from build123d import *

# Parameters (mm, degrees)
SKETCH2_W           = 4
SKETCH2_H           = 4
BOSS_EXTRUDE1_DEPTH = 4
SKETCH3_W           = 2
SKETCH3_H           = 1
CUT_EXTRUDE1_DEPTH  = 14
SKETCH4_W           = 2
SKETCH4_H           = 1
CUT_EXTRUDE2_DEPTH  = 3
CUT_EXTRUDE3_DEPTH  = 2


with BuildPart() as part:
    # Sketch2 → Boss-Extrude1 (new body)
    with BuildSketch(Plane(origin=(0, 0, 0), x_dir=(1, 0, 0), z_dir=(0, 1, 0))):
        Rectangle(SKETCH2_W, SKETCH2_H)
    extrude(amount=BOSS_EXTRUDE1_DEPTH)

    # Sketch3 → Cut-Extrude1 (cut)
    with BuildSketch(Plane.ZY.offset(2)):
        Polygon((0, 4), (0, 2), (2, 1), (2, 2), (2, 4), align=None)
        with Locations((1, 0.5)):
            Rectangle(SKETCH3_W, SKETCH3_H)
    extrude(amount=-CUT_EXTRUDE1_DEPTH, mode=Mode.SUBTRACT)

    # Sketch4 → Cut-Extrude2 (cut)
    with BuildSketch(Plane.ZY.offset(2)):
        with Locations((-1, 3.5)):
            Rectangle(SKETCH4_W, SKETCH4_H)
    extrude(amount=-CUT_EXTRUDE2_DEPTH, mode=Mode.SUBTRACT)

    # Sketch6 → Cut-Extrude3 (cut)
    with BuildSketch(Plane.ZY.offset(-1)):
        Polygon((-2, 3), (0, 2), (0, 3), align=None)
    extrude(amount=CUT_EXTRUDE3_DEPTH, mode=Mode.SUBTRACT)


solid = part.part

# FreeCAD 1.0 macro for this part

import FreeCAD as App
import Part
import Sketcher
from FreeCAD import Vector


def add_polygon(sketch, points):
    """Adds a closed chain of lines whose ends are joined by coincident constraints."""
    first, n = sketch.GeometryCount, len(points)
    for a, b in zip(points, points[1:] + points[:1]):
        sketch.addGeometry(Part.LineSegment(App.Vector(*a, 0), App.Vector(*b, 0)), False)
    for i in range(n):
        sketch.addConstraint(Sketcher.Constraint("Coincident", first + i, 2, first + (i + 1) % n, 1))

doc = App.newDocument("Part")
params = doc.addObject("Spreadsheet::Sheet", "Params")
for row, (alias, value) in enumerate([
    ("sketch1_width", "4 mm"),
    ("pad1_length", "4 mm"),
    ("sketch2_width", "2 mm"),
    ("sketch2_width2", "3 mm"),
    ("sketch2_width3", "1 mm"),
    ("pocket1_length", "14 mm"),
    ("sketch3_width", "1 mm"),
    ("sketch3_height", "2 mm"),
    ("pocket2_length", "3 mm"),
    ("sketch4_width", "1 mm"),
    ("sketch4_height", "2 mm"),
    ("pocket3_length", "2 mm"),
], start=1):
    params.set(f"A{row}", alias)
    params.set(f"B{row}", "=" + value)
    params.setAlias(f"B{row}", alias)

body = doc.addObject("PartDesign::Body", "Body")

# Sketch on XZ plane
sketch1 = body.newObject("Sketcher::SketchObject", "Sketch")
sketch1.AttachmentSupport = (doc.getObject("XZ_Plane"), [""])
sketch1.MapMode = "FlatFace"
add_polygon(sketch1, [(-2, -2), (-2, 2), (2, 2), (2, -2)])  # lines 0-3
sketch1.addConstraint(Sketcher.Constraint("Vertical", 0))
sketch1.addConstraint(Sketcher.Constraint("Horizontal", 1))
sketch1.addConstraint(Sketcher.Constraint("Vertical", 2))
sketch1.addConstraint(Sketcher.Constraint("Horizontal", 3))
sketch1.addConstraint(Sketcher.Constraint("Symmetric", 0, 2, 2, 2, -1, 1))
sketch1.addConstraint(Sketcher.Constraint("Equal", 3, 0))
sketch1.addConstraint(Sketcher.Constraint("DistanceX", 1, 1, 1, 2, 4.0))
sketch1.setExpression("Constraints[10]", "Params.sketch1_width")
pad1 = body.newObject("PartDesign::Pad", "Pad")
pad1.Profile = sketch1
pad1.setExpression("Length", "Params.pad1_length")
pad1.Reversed = True

# Sketch on YZ plane
sketch2 = body.newObject("Sketcher::SketchObject", "Sketch001")
sketch2.AttachmentSupport = (doc.getObject("YZ_Plane"), [""])
sketch2.MapMode = "FlatFace"
sketch2.AttachmentOffset = App.Placement(Vector(0, 0, -2), App.Rotation())
add_polygon(sketch2, [(4, 0), (2, 0), (1, 2), (4, 2)])  # lines 0-3
add_polygon(sketch2, [(1, 0), (0, 0), (0, 2), (1, 2)])  # lines 4-7
sketch2.addConstraint(Sketcher.Constraint("Horizontal", 0))
sketch2.addConstraint(Sketcher.Constraint("Horizontal", 2))
sketch2.addConstraint(Sketcher.Constraint("Vertical", 3))
sketch2.addConstraint(Sketcher.Constraint("Horizontal", 4))
sketch2.addConstraint(Sketcher.Constraint("Vertical", 5))
sketch2.addConstraint(Sketcher.Constraint("Horizontal", 6))
sketch2.addConstraint(Sketcher.Constraint("Vertical", 7))
sketch2.addConstraint(Sketcher.Constraint("Coincident", 4, 2, -1, 1))
sketch2.addConstraint(Sketcher.Constraint("Coincident", 6, 2, 1, 2))
sketch2.addConstraint(Sketcher.Constraint("PointOnObject", 0, 2, -1))
sketch2.addConstraint(Sketcher.Constraint("Equal", 0, 3))
sketch2.addConstraint(Sketcher.Constraint("DistanceX", 0, 2, 0, 1, 2.0))
sketch2.addConstraint(Sketcher.Constraint("DistanceX", 2, 1, 2, 2, 3.0))
sketch2.addConstraint(Sketcher.Constraint("DistanceX", 4, 2, 4, 1, 1.0))
sketch2.setExpression("Constraints[19]", "Params.sketch2_width")
sketch2.setExpression("Constraints[20]", "Params.sketch2_width2")
sketch2.setExpression("Constraints[21]", "Params.sketch2_width3")
pocket1 = body.newObject("PartDesign::Pocket", "Pocket")
pocket1.Profile = sketch2
pocket1.setExpression("Length", "Params.pocket1_length")
pocket1.Reversed = True

# Sketch on YZ plane
sketch3 = body.newObject("Sketcher::SketchObject", "Sketch002")
sketch3.AttachmentSupport = (doc.getObject("YZ_Plane"), [""])
sketch3.MapMode = "FlatFace"
sketch3.AttachmentOffset = App.Placement(Vector(0, 0, -2), App.Rotation())
add_polygon(sketch3, [(4, -2), (3, -2), (3, 0), (4, 0)])  # lines 0-3
sketch3.addConstraint(Sketcher.Constraint("Horizontal", 0))
sketch3.addConstraint(Sketcher.Constraint("Vertical", 1))
sketch3.addConstraint(Sketcher.Constraint("Horizontal", 2))
sketch3.addConstraint(Sketcher.Constraint("Vertical", 3))
sketch3.addConstraint(Sketcher.Constraint("PointOnObject", 1, 2, -1))
sketch3.addConstraint(Sketcher.Constraint("DistanceX", 0, 2, 0, 1, 1.0))
sketch3.addConstraint(Sketcher.Constraint("DistanceY", 1, 1, 1, 2, 2.0))
sketch3.addConstraint(Sketcher.Constraint("DistanceX", -1, 1, 0, 2, 3.0))
sketch3.setExpression("Constraints[9]", "Params.sketch3_width")
sketch3.setExpression("Constraints[10]", "Params.sketch3_height")
pocket2 = body.newObject("PartDesign::Pocket", "Pocket001")
pocket2.Profile = sketch3
pocket2.setExpression("Length", "Params.pocket2_length")
pocket2.Reversed = True

# Sketch on YZ plane
sketch4 = body.newObject("Sketcher::SketchObject", "Sketch003")
sketch4.AttachmentSupport = (doc.getObject("YZ_Plane"), [""])
sketch4.MapMode = "FlatFace"
sketch4.AttachmentOffset = App.Placement(Vector(0, 0, 1), App.Rotation())
add_polygon(sketch4, [(3, -2), (2, 0), (3, 0)])  # lines 0-2
sketch4.addConstraint(Sketcher.Constraint("Horizontal", 1))
sketch4.addConstraint(Sketcher.Constraint("Vertical", 2))
sketch4.addConstraint(Sketcher.Constraint("PointOnObject", 0, 2, -1))
sketch4.addConstraint(Sketcher.Constraint("DistanceX", 1, 1, 1, 2, 1.0))
sketch4.addConstraint(Sketcher.Constraint("DistanceY", 2, 2, 2, 1, 2.0))
sketch4.addConstraint(Sketcher.Constraint("DistanceX", -1, 1, 0, 2, 2.0))
sketch4.setExpression("Constraints[6]", "Params.sketch4_width")
sketch4.setExpression("Constraints[7]", "Params.sketch4_height")
pocket3 = body.newObject("PartDesign::Pocket", "Pocket002")
pocket3.Profile = sketch4
pocket3.setExpression("Length", "Params.pocket3_length")

doc.recompute()
